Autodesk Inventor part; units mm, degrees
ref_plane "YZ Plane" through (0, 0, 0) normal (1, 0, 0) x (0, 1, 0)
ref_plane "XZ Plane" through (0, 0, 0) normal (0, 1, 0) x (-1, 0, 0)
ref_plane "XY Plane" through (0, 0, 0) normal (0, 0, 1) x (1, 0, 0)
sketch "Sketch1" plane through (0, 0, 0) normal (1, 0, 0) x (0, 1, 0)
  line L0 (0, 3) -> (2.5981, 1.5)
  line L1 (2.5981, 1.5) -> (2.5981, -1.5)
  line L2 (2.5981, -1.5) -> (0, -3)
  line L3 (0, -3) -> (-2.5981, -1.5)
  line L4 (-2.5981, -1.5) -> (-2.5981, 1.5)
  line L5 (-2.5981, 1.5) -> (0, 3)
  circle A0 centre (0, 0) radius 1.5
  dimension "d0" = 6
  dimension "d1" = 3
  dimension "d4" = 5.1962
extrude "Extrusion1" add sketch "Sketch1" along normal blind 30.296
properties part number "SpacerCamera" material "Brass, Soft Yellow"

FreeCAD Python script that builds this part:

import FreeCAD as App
import Part
import Sketcher
from FreeCAD import Vector


def add_polygon(sketch, points):
    """Adds a closed chain of lines whose ends are joined by coincident constraints."""
    first, n = sketch.GeometryCount, len(points)
    for a, b in zip(points, points[1:] + points[:1]):
        sketch.addGeometry(Part.LineSegment(App.Vector(*a, 0), App.Vector(*b, 0)), False)
    for i in range(n):
        sketch.addConstraint(Sketcher.Constraint("Coincident", first + i, 2, first + (i + 1) % n, 1))

doc = App.newDocument("Part")
body = doc.addObject("PartDesign::Body", "Body")

# Sketch on YZ plane
sketch1 = doc.addObject("Sketcher::SketchObject", "Sketch")
body.addObject(sketch1)
sketch1.AttachmentSupport = (doc.YZ_Plane, [""])
sketch1.MapMode = "FlatFace"
add_polygon(sketch1, [(2.6, 1.5), (0, 3), (-2.6, 1.5), (-2.6, -1.5), (0, -3), (2.6, -1.5)])  # lines 0-5
sketch1.addGeometry(Part.Circle(Vector(0, 0, 0), Vector(0, 0, 1), 1.5), False)  # 6
sketch1.addConstraint(Sketcher.Constraint("Vertical", 2))
sketch1.addConstraint(Sketcher.Constraint("Vertical", 5))
sketch1.addConstraint(Sketcher.Constraint("Coincident", 6, 3, -1, 1))
sketch1.addConstraint(Sketcher.Constraint("Symmetric", 0, 2, 3, 2, -1, 1))
sketch1.addConstraint(Sketcher.Constraint("Symmetric", 1, 2, 4, 2, -1, 1))
sketch1.addConstraint(Sketcher.Constraint("PointOnObject", 0, 2, -2))
sketch1.addConstraint(Sketcher.Constraint("Parallel", 0, 3))
sketch1.addConstraint(Sketcher.Constraint("Horizontal", 2, 2, 4, 2))
sketch1.addConstraint(Sketcher.Constraint("Diameter", 6, 3.0))
sketch1.addConstraint(Sketcher.Constraint("DistanceY", 2, 2, 2, 1, 3.0))
sketch1.addConstraint(Sketcher.Constraint("Distance", 0, 3.0))
sketch1.addConstraint(Sketcher.Constraint("DistanceY", -1, 1, 0, 2, 3.0))
pad1 = doc.addObject("PartDesign::Pad", "Pad")
body.addObject(pad1)
pad1.Profile = sketch1
pad1.Length = 30.296

doc.recompute()
